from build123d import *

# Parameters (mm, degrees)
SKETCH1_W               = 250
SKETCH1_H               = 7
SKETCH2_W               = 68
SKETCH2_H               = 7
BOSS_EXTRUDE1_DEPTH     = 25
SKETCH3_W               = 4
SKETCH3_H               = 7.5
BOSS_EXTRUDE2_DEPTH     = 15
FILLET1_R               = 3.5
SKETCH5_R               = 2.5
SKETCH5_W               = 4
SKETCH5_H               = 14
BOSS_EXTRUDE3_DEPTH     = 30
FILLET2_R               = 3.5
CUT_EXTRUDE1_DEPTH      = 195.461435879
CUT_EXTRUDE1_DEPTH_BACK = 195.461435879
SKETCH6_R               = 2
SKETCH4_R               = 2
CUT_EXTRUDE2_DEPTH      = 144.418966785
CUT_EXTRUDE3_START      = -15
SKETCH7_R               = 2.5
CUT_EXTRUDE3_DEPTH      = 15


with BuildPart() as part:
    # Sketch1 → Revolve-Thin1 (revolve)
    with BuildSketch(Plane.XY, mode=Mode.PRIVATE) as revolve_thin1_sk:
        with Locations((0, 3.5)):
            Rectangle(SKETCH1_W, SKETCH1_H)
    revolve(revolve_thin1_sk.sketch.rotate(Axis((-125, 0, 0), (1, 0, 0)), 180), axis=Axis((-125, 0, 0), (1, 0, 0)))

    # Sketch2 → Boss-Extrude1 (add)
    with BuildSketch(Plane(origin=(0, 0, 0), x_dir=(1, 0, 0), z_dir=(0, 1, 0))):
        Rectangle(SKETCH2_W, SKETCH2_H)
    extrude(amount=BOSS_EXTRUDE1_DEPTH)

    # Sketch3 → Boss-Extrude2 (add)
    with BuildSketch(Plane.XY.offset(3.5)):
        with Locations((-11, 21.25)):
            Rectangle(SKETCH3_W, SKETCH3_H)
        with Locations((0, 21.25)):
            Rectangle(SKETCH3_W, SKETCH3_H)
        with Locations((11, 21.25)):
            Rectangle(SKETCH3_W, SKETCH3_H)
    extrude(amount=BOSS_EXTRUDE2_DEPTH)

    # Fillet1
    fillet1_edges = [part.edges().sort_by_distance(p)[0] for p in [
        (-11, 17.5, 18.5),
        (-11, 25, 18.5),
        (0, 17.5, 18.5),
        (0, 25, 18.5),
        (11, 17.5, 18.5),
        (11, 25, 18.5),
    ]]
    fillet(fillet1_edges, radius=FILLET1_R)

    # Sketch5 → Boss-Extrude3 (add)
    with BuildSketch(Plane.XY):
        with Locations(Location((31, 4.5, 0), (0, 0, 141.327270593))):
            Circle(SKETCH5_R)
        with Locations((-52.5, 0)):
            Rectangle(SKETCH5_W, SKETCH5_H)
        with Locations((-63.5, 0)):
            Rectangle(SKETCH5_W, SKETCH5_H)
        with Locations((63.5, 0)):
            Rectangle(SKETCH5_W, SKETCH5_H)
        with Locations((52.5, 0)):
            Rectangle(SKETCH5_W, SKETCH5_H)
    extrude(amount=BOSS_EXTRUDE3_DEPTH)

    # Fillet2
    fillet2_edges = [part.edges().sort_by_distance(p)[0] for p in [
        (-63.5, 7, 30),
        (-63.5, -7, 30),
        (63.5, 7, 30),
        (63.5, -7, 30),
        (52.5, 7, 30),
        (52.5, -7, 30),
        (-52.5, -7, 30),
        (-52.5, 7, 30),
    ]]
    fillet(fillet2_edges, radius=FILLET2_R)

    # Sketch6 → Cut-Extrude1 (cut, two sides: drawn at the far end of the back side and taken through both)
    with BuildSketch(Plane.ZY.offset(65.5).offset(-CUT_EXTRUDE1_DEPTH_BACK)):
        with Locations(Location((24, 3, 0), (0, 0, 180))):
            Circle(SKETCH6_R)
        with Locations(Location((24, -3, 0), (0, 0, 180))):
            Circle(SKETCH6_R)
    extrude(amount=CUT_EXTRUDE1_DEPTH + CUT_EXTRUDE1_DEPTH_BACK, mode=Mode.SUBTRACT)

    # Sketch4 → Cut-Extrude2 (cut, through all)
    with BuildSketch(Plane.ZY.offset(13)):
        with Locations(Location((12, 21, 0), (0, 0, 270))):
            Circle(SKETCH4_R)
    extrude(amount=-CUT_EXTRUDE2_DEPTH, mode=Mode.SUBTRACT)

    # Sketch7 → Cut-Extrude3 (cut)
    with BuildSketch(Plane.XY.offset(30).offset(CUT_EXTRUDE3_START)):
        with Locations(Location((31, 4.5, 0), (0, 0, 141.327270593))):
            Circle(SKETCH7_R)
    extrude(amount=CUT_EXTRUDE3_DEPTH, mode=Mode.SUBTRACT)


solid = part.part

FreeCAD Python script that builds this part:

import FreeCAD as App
import Part
import Sketcher
from FreeCAD import Vector


def edges_at(feature, points):
    """Names of the edges that pass closest to the given points."""
    edges = feature.Shape.Edges
    near = lambda p: min(range(len(edges)), key=lambda i: edges[i].distToShape(Part.Vertex(*p))[0])
    return sorted({f"Edge{near(p) + 1}" for p in points})


def add_polygon(sketch, points):
    """Adds a closed chain of lines whose ends are joined by coincident constraints."""
    first, n = sketch.GeometryCount, len(points)
    for a, b in zip(points, points[1:] + points[:1]):
        sketch.addGeometry(Part.LineSegment(App.Vector(*a, 0), App.Vector(*b, 0)), False)
    for i in range(n):
        sketch.addConstraint(Sketcher.Constraint("Coincident", first + i, 2, first + (i + 1) % n, 1))

doc = App.newDocument("Part")
params = doc.addObject("Spreadsheet::Sheet", "Params")
for row, (alias, value) in enumerate([
    ("sketch1_width", "250 mm"),
    ("sketch1_height", "7 mm"),
    ("revolution_angle", "360 deg"),
    ("sketch2_width", "68 mm"),
    ("sketch2_height", "7 mm"),
    ("pad1_length", "25 mm"),
    ("sketch3_width", "4 mm"),
    ("sketch3_height", "7.5 mm"),
    ("pad2_length", "15 mm"),
    ("fillet_radius", "3.5 mm"),
    ("sketch4_diameter", "5 mm"),
    ("sketch4_width", "4 mm"),
    ("sketch4_height", "14 mm"),
    ("pad3_length", "30 mm"),
    ("fillet2_radius", "3.5 mm"),
    ("sketch5_diameter", "4 mm"),
    ("sketch6_diameter", "4 mm"),
    ("sketch7_diameter", "5 mm"),
    ("pocket3_length", "15 mm"),
], start=1):
    params.set(f"A{row}", alias)
    params.set(f"B{row}", "=" + value)
    params.setAlias(f"B{row}", alias)

body = doc.addObject("PartDesign::Body", "Body")

# Sketch on XY plane
sketch1 = doc.addObject("Sketcher::SketchObject", "Sketch")
body.addObject(sketch1)
sketch1.AttachmentSupport = (doc.XY_Plane, [""])
sketch1.MapMode = "FlatFace"
add_polygon(sketch1, [(-125, 7), (-125, 0), (125, 0), (125, 7)])  # lines 0-3
sketch1.addConstraint(Sketcher.Constraint("Vertical", 0))
sketch1.addConstraint(Sketcher.Constraint("Horizontal", 1))
sketch1.addConstraint(Sketcher.Constraint("Vertical", 2))
sketch1.addConstraint(Sketcher.Constraint("Horizontal", 3))
sketch1.addConstraint(Sketcher.Constraint("Symmetric", 0, 2, 1, 2, -1, 1))
sketch1.addConstraint(Sketcher.Constraint("DistanceX", 1, 1, 1, 2, 250.0))
sketch1.addConstraint(Sketcher.Constraint("DistanceY", 0, 2, 0, 1, 7.0))
sketch1.setExpression("Constraints[9]", "Params.sketch1_width")
sketch1.setExpression("Constraints[10]", "Params.sketch1_height")
revolution = doc.addObject("PartDesign::Revolution", "Revolution")
body.addObject(revolution)
revolution.Profile = sketch1
revolution.ReferenceAxis = (sketch1, ["H_Axis"])
revolution.setExpression("Angle", "Params.revolution_angle")

# Sketch on XZ plane
sketch2 = doc.addObject("Sketcher::SketchObject", "Sketch001")
body.addObject(sketch2)
sketch2.AttachmentSupport = (doc.XZ_Plane, [""])
sketch2.MapMode = "FlatFace"
add_polygon(sketch2, [(-34, -3.5), (-34, 3.5), (34, 3.5), (34, -3.5)])  # lines 0-3
sketch2.addConstraint(Sketcher.Constraint("Vertical", 0))
sketch2.addConstraint(Sketcher.Constraint("Horizontal", 1))
sketch2.addConstraint(Sketcher.Constraint("Vertical", 2))
sketch2.addConstraint(Sketcher.Constraint("Horizontal", 3))
sketch2.addConstraint(Sketcher.Constraint("Symmetric", 0, 2, 2, 2, -1, 1))
sketch2.addConstraint(Sketcher.Constraint("DistanceX", 1, 1, 1, 2, 68.0))
sketch2.addConstraint(Sketcher.Constraint("DistanceY", 0, 1, 0, 2, 7.0))
sketch2.setExpression("Constraints[9]", "Params.sketch2_width")
sketch2.setExpression("Constraints[10]", "Params.sketch2_height")
pad1 = doc.addObject("PartDesign::Pad", "Pad")
body.addObject(pad1)
pad1.Profile = sketch2
pad1.setExpression("Length", "Params.pad1_length")
pad1.Reversed = True

# Sketch on XY plane
sketch3 = doc.addObject("Sketcher::SketchObject", "Sketch002")
body.addObject(sketch3)
sketch3.AttachmentSupport = (doc.XY_Plane, [""])
sketch3.MapMode = "FlatFace"
sketch3.AttachmentOffset = App.Placement(Vector(0, 0, 3.5), App.Rotation())
add_polygon(sketch3, [(-13, 25), (-13, 17.5), (-9, 17.5), (-9, 25)])  # lines 0-3
add_polygon(sketch3, [(-2, 25), (-2, 17.5), (2, 17.5), (2, 25)])  # lines 4-7
add_polygon(sketch3, [(9, 25), (9, 17.5), (13, 17.5), (13, 25)])  # lines 8-11
sketch3.addConstraint(Sketcher.Constraint("Vertical", 0))
sketch3.addConstraint(Sketcher.Constraint("Horizontal", 1))
sketch3.addConstraint(Sketcher.Constraint("Vertical", 2))
sketch3.addConstraint(Sketcher.Constraint("Horizontal", 3))
sketch3.addConstraint(Sketcher.Constraint("Vertical", 4))
sketch3.addConstraint(Sketcher.Constraint("Horizontal", 5))
sketch3.addConstraint(Sketcher.Constraint("Vertical", 6))
sketch3.addConstraint(Sketcher.Constraint("Horizontal", 7))
sketch3.addConstraint(Sketcher.Constraint("Vertical", 8))
sketch3.addConstraint(Sketcher.Constraint("Horizontal", 9))
sketch3.addConstraint(Sketcher.Constraint("Vertical", 10))
sketch3.addConstraint(Sketcher.Constraint("Horizontal", 11))
sketch3.addConstraint(Sketcher.Constraint("Symmetric", 1, 2, 8, 2, -2))
sketch3.addConstraint(Sketcher.Constraint("Symmetric", 3, 2, 10, 2, -2))
sketch3.addConstraint(Sketcher.Constraint("Horizontal", 1, 2, 4, 2))
sketch3.addConstraint(Sketcher.Constraint("Horizontal", 3, 2, 6, 2))
sketch3.addConstraint(Sketcher.Constraint("Equal", 3, 5))
sketch3.addConstraint(Sketcher.Constraint("DistanceX", 1, 1, 1, 2, 4.0))
sketch3.addConstraint(Sketcher.Constraint("DistanceY", 0, 2, 0, 1, 7.5))
sketch3.addConstraint(Sketcher.Constraint("DistanceX", 0, 2, -1, 1, 13.0))
sketch3.addConstraint(Sketcher.Constraint("DistanceY", -1, 1, 2, 2, 25.0))
sketch3.addConstraint(Sketcher.Constraint("DistanceX", 4, 2, -1, 1, 2.0))
sketch3.setExpression("Constraints[29]", "Params.sketch3_width")
sketch3.setExpression("Constraints[30]", "Params.sketch3_height")
pad2 = doc.addObject("PartDesign::Pad", "Pad001")
body.addObject(pad2)
pad2.Profile = sketch3
pad2.setExpression("Length", "Params.pad2_length")
doc.recompute()

fillet = doc.addObject("PartDesign::Fillet", "Fillet")
body.addObject(fillet)
fillet.Base = (pad2, edges_at(pad2, [
    (-11, 17.5, 18.5),
    (-11, 25, 18.5),
    (0, 17.5, 18.5),
    (0, 25, 18.5),
    (11, 17.5, 18.5),
    (11, 25, 18.5),
]))
fillet.setExpression("Radius", "Params.fillet_radius")

# Sketch on XY plane
sketch4 = doc.addObject("Sketcher::SketchObject", "Sketch003")
body.addObject(sketch4)
sketch4.AttachmentSupport = (doc.XY_Plane, [""])
sketch4.MapMode = "FlatFace"
sketch4.addGeometry(Part.Circle(Vector(31, 4.5, 0), Vector(0, 0, 1), 2.5), False)  # 0
add_polygon(sketch4, [(-54.5, 7), (-54.5, -7), (-50.5, -7), (-50.5, 7)])  # lines 1-4
add_polygon(sketch4, [(-65.5, 7), (-65.5, -7), (-61.5, -7), (-61.5, 7)])  # lines 5-8
add_polygon(sketch4, [(61.5, 7), (61.5, -7), (65.5, -7), (65.5, 7)])  # lines 9-12
add_polygon(sketch4, [(50.5, 7), (50.5, -7), (54.5, -7), (54.5, 7)])  # lines 13-16
sketch4.addConstraint(Sketcher.Constraint("Vertical", 1))
sketch4.addConstraint(Sketcher.Constraint("Horizontal", 2))
sketch4.addConstraint(Sketcher.Constraint("Vertical", 3))
sketch4.addConstraint(Sketcher.Constraint("Horizontal", 4))
sketch4.addConstraint(Sketcher.Constraint("Vertical", 5))
sketch4.addConstraint(Sketcher.Constraint("Horizontal", 6))
sketch4.addConstraint(Sketcher.Constraint("Vertical", 7))
sketch4.addConstraint(Sketcher.Constraint("Horizontal", 8))
sketch4.addConstraint(Sketcher.Constraint("Vertical", 9))
sketch4.addConstraint(Sketcher.Constraint("Horizontal", 10))
sketch4.addConstraint(Sketcher.Constraint("Vertical", 11))
sketch4.addConstraint(Sketcher.Constraint("Horizontal", 12))
sketch4.addConstraint(Sketcher.Constraint("Vertical", 13))
sketch4.addConstraint(Sketcher.Constraint("Horizontal", 14))
sketch4.addConstraint(Sketcher.Constraint("Vertical", 15))
sketch4.addConstraint(Sketcher.Constraint("Horizontal", 16))
sketch4.addConstraint(Sketcher.Constraint("Symmetric", 7, 2, 9, 2, -1, 1))
sketch4.addConstraint(Sketcher.Constraint("Symmetric", 5, 2, 11, 2, -1, 1))
sketch4.addConstraint(Sketcher.Constraint("Symmetric", 3, 2, 13, 2, -1, 1))
sketch4.addConstraint(Sketcher.Constraint("Symmetric", 1, 2, 15, 2, -1, 1))
sketch4.addConstraint(Sketcher.Constraint("Horizontal", 2, 2, 5, 2))
sketch4.addConstraint(Sketcher.Constraint("Horizontal", 4, 2, 7, 2))
sketch4.addConstraint(Sketcher.Constraint("Horizontal", 6, 2, 9, 2))
sketch4.addConstraint(Sketcher.Constraint("Equal", 4, 6))
sketch4.addConstraint(Sketcher.Constraint("Diameter", 0, 5.0))
sketch4.addConstraint(Sketcher.Constraint("DistanceX", 2, 1, 2, 2, 4.0))
sketch4.addConstraint(Sketcher.Constraint("DistanceY", 1, 2, 1, 1, 14.0))
sketch4.addConstraint(Sketcher.Constraint("DistanceX", -1, 1, 0, 3, 31.0))
sketch4.addConstraint(Sketcher.Constraint("DistanceX", 5, 2, 1, 2, 11.0))
sketch4.addConstraint(Sketcher.Constraint("DistanceX", 2, 2, 9, 2, 112.0))
sketch4.addConstraint(Sketcher.Constraint("DistanceY", -1, 1, 0, 3, 4.5))
sketch4.setExpression("Constraints[40]", "Params.sketch4_diameter")
sketch4.setExpression("Constraints[41]", "Params.sketch4_width")
sketch4.setExpression("Constraints[42]", "Params.sketch4_height")
pad3 = doc.addObject("PartDesign::Pad", "Pad002")
body.addObject(pad3)
pad3.Profile = sketch4
pad3.setExpression("Length", "Params.pad3_length")
doc.recompute()

fillet2 = doc.addObject("PartDesign::Fillet", "Fillet001")
body.addObject(fillet2)
fillet2.Base = (pad3, edges_at(pad3, [
    (-63.5, 7, 30),
    (-63.5, -7, 30),
    (63.5, 7, 30),
    (63.5, -7, 30),
    (52.5, 7, 30),
    (52.5, -7, 30),
    (-52.5, -7, 30),
    (-52.5, 7, 30),
]))
fillet2.setExpression("Radius", "Params.fillet2_radius")

# Sketch on YZ plane
sketch5 = doc.addObject("Sketcher::SketchObject", "Sketch004")
body.addObject(sketch5)
sketch5.AttachmentSupport = (doc.YZ_Plane, [""])
sketch5.MapMode = "FlatFace"
sketch5.AttachmentOffset = App.Placement(Vector(0, 0, -65.5), App.Rotation())
sketch5.addGeometry(Part.Circle(Vector(3, 24, 0), Vector(0, 0, 1), 2), False)
sketch5.addGeometry(Part.Circle(Vector(-3, 24, 0), Vector(0, 0, 1), 2), False)
sketch5.addConstraint(Sketcher.Constraint("Equal", 0, 1))
sketch5.addConstraint(Sketcher.Constraint("Symmetric", 0, 3, 1, 3, -2))
sketch5.addConstraint(Sketcher.Constraint("Diameter", 0, 4.0))
sketch5.addConstraint(Sketcher.Constraint("DistanceX", -1, 1, 0, 3, 3.0))
sketch5.addConstraint(Sketcher.Constraint("DistanceY", -1, 1, 0, 3, 24.0))
sketch5.setExpression("Constraints[2]", "Params.sketch5_diameter")
pocket1 = doc.addObject("PartDesign::Pocket", "Pocket")
body.addObject(pocket1)
pocket1.Profile = sketch5
pocket1.Type = "ThroughAll"
pocket1.Midplane = True

# Sketch on YZ plane
sketch6 = doc.addObject("Sketcher::SketchObject", "Sketch005")
body.addObject(sketch6)
sketch6.AttachmentSupport = (doc.YZ_Plane, [""])
sketch6.MapMode = "FlatFace"
sketch6.AttachmentOffset = App.Placement(Vector(0, 0, -13), App.Rotation())
sketch6.addGeometry(Part.Circle(Vector(21, 12, 0), Vector(0, 0, 1), 2), False)
sketch6.addConstraint(Sketcher.Constraint("Diameter", 0, 4.0))
sketch6.addConstraint(Sketcher.Constraint("DistanceX", -1, 1, 0, 3, 21.0))
sketch6.addConstraint(Sketcher.Constraint("DistanceY", -1, 1, 0, 3, 12.0))
sketch6.setExpression("Constraints[0]", "Params.sketch6_diameter")
pocket2 = doc.addObject("PartDesign::Pocket", "Pocket001")
body.addObject(pocket2)
pocket2.Profile = sketch6
pocket2.Type = "ThroughAll"
pocket2.Reversed = True

# Sketch on XY plane
sketch7 = doc.addObject("Sketcher::SketchObject", "Sketch006")
body.addObject(sketch7)
sketch7.AttachmentSupport = (doc.XY_Plane, [""])
sketch7.MapMode = "FlatFace"
sketch7.AttachmentOffset = App.Placement(Vector(0, 0, 15), App.Rotation())
sketch7.addGeometry(Part.Circle(Vector(31, 4.5, 0), Vector(0, 0, 1), 2.5), False)
sketch7.addConstraint(Sketcher.Constraint("Diameter", 0, 5.0))
sketch7.addConstraint(Sketcher.Constraint("DistanceX", -1, 1, 0, 3, 31.0))
sketch7.addConstraint(Sketcher.Constraint("DistanceY", -1, 1, 0, 3, 4.5))
sketch7.setExpression("Constraints[0]", "Params.sketch7_diameter")
pocket3 = doc.addObject("PartDesign::Pocket", "Pocket002")
body.addObject(pocket3)
pocket3.Profile = sketch7
pocket3.setExpression("Length", "Params.pocket3_length")
pocket3.Reversed = True

doc.recompute()
